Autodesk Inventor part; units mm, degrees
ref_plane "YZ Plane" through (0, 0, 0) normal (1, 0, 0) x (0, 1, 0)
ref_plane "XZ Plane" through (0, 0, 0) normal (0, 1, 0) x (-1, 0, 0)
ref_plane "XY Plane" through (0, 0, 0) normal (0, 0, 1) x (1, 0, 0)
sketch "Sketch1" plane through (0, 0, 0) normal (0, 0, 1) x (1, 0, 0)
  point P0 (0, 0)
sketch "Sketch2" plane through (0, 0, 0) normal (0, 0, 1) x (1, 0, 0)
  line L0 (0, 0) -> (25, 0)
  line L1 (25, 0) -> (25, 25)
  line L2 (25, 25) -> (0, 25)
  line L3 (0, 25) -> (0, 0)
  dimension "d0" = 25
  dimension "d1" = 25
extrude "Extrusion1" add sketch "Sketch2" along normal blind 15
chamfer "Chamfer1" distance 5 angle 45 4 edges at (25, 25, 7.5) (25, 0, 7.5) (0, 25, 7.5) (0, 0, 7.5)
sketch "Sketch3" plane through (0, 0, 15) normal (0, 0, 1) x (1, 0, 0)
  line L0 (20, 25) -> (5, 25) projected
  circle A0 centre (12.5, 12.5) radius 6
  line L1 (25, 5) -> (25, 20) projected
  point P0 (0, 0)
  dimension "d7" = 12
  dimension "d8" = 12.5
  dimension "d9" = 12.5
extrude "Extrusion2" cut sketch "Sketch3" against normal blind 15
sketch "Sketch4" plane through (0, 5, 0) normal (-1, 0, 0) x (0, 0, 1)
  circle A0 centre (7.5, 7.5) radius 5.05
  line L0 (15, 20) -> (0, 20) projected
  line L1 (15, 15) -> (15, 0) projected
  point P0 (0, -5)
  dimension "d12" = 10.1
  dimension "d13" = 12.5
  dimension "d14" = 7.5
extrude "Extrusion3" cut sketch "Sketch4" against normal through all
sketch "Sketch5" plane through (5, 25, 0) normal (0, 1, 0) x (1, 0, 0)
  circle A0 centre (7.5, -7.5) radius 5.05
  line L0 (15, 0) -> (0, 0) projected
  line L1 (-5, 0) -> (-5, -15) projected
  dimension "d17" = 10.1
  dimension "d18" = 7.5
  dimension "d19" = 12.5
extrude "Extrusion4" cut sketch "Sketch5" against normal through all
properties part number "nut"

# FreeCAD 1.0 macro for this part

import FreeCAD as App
import Part
import Sketcher

V = App.Vector
Q = App.Units.Quantity


def edges_at(feature, points):
    """Names of the edges that pass closest to the given points."""
    edges = feature.Shape.Edges
    near = lambda p: min(range(len(edges)), key=lambda i: edges[i].distToShape(Part.Vertex(*p))[0])
    return sorted({f"Edge{near(p) + 1}" for p in points})

doc = App.newDocument("Part")
body = doc.addObject("PartDesign::Body", "Body")

# Sketch on XY plane
sketch1 = body.newObject("Sketcher::SketchObject", "Sketch")
sketch1.AttachmentSupport = (doc.getObject("XY_Plane"), [""])
sketch1.MapMode = "FlatFace"
sketch1.addGeometry([
    Part.LineSegment(V(0, 25, 0), V(0, 0, 0)),
    Part.LineSegment(V(0, 0, 0), V(25, 0, 0)),
    Part.LineSegment(V(25, 0, 0), V(25, 25, 0)),
    Part.LineSegment(V(25, 25, 0), V(0, 25, 0)),
], False)
sketch1.addConstraint([
    Sketcher.Constraint("Coincident", 0, 2, 1, 1),
    Sketcher.Constraint("Coincident", 1, 2, 2, 1),
    Sketcher.Constraint("Coincident", 2, 2, 3, 1),
    Sketcher.Constraint("Coincident", 3, 2, 0, 1),
    Sketcher.Constraint("Vertical", 0),
    Sketcher.Constraint("Horizontal", 1),
    Sketcher.Constraint("Vertical", 2),
    Sketcher.Constraint("Horizontal", 3),
    Sketcher.Constraint("Coincident", 0, 2, -1, 1),
    Sketcher.Constraint("Equal", 3, 0),
    Sketcher.Constraint("DistanceX", 1, 1, 1, 2, Q("25 mm")),
])
pad1 = body.newObject("PartDesign::Pad", "Pad")
pad1.Profile = sketch1
pad1.Length = 15
doc.recompute()

chamfer = body.newObject("PartDesign::Chamfer", "Chamfer")
chamfer.Base = (pad1, edges_at(pad1, [
    (25, 25, 7.5),
    (25, 0, 7.5),
    (0, 25, 7.5),
    (0, 0, 7.5),
]))
chamfer.Size = 5

# Sketch on XY plane
sketch2 = body.newObject("Sketcher::SketchObject", "Sketch001")
sketch2.AttachmentSupport = (doc.getObject("XY_Plane"), [""])
sketch2.MapMode = "FlatFace"
sketch2.AttachmentOffset = App.Placement(V(0, 0, 15), App.Rotation())
sketch2.addGeometry(Part.Circle(V(12, 12, 0), V(0, 0, 1), 6), False)
sketch2.addConstraint([
    Sketcher.Constraint("Diameter", 0, Q("12 mm")),
    Sketcher.Constraint("DistanceX", -1, 1, 0, 3, Q("12.5 mm")),
    Sketcher.Constraint("DistanceY", -1, 1, 0, 3, Q("12.5 mm")),
])
pocket1 = body.newObject("PartDesign::Pocket", "Pocket")
pocket1.Profile = sketch2
pocket1.Length = 15

# Sketch on YZ plane
sketch3 = body.newObject("Sketcher::SketchObject", "Sketch002")
sketch3.AttachmentSupport = (doc.getObject("YZ_Plane"), [""])
sketch3.MapMode = "FlatFace"
sketch3.addGeometry(Part.Circle(V(12, 8, 0), V(0, 0, 1), 5), False)
sketch3.addConstraint([
    Sketcher.Constraint("Diameter", 0, Q("10.1 mm")),
    Sketcher.Constraint("DistanceX", -1, 1, 0, 3, Q("12.5 mm")),
    Sketcher.Constraint("DistanceY", -1, 1, 0, 3, Q("7.5 mm")),
])
pocket2 = body.newObject("PartDesign::Pocket", "Pocket001")
pocket2.Profile = sketch3
pocket2.Type = "ThroughAll"
pocket2.Reversed = True

# Sketch on XZ plane
sketch4 = body.newObject("Sketcher::SketchObject", "Sketch003")
sketch4.AttachmentSupport = (doc.getObject("XZ_Plane"), [""])
sketch4.MapMode = "FlatFace"
sketch4.AttachmentOffset = App.Placement(V(0, 0, -25), App.Rotation())
sketch4.addGeometry(Part.Circle(V(12, 8, 0), V(0, 0, 1), 5), False)
sketch4.addConstraint([
    Sketcher.Constraint("Diameter", 0, Q("10.1 mm")),
    Sketcher.Constraint("DistanceX", -1, 1, 0, 3, Q("12.5 mm")),
    Sketcher.Constraint("DistanceY", -1, 1, 0, 3, Q("7.5 mm")),
])
pocket3 = body.newObject("PartDesign::Pocket", "Pocket002")
pocket3.Profile = sketch4
pocket3.Type = "ThroughAll"
pocket3.Reversed = True

doc.recompute()
